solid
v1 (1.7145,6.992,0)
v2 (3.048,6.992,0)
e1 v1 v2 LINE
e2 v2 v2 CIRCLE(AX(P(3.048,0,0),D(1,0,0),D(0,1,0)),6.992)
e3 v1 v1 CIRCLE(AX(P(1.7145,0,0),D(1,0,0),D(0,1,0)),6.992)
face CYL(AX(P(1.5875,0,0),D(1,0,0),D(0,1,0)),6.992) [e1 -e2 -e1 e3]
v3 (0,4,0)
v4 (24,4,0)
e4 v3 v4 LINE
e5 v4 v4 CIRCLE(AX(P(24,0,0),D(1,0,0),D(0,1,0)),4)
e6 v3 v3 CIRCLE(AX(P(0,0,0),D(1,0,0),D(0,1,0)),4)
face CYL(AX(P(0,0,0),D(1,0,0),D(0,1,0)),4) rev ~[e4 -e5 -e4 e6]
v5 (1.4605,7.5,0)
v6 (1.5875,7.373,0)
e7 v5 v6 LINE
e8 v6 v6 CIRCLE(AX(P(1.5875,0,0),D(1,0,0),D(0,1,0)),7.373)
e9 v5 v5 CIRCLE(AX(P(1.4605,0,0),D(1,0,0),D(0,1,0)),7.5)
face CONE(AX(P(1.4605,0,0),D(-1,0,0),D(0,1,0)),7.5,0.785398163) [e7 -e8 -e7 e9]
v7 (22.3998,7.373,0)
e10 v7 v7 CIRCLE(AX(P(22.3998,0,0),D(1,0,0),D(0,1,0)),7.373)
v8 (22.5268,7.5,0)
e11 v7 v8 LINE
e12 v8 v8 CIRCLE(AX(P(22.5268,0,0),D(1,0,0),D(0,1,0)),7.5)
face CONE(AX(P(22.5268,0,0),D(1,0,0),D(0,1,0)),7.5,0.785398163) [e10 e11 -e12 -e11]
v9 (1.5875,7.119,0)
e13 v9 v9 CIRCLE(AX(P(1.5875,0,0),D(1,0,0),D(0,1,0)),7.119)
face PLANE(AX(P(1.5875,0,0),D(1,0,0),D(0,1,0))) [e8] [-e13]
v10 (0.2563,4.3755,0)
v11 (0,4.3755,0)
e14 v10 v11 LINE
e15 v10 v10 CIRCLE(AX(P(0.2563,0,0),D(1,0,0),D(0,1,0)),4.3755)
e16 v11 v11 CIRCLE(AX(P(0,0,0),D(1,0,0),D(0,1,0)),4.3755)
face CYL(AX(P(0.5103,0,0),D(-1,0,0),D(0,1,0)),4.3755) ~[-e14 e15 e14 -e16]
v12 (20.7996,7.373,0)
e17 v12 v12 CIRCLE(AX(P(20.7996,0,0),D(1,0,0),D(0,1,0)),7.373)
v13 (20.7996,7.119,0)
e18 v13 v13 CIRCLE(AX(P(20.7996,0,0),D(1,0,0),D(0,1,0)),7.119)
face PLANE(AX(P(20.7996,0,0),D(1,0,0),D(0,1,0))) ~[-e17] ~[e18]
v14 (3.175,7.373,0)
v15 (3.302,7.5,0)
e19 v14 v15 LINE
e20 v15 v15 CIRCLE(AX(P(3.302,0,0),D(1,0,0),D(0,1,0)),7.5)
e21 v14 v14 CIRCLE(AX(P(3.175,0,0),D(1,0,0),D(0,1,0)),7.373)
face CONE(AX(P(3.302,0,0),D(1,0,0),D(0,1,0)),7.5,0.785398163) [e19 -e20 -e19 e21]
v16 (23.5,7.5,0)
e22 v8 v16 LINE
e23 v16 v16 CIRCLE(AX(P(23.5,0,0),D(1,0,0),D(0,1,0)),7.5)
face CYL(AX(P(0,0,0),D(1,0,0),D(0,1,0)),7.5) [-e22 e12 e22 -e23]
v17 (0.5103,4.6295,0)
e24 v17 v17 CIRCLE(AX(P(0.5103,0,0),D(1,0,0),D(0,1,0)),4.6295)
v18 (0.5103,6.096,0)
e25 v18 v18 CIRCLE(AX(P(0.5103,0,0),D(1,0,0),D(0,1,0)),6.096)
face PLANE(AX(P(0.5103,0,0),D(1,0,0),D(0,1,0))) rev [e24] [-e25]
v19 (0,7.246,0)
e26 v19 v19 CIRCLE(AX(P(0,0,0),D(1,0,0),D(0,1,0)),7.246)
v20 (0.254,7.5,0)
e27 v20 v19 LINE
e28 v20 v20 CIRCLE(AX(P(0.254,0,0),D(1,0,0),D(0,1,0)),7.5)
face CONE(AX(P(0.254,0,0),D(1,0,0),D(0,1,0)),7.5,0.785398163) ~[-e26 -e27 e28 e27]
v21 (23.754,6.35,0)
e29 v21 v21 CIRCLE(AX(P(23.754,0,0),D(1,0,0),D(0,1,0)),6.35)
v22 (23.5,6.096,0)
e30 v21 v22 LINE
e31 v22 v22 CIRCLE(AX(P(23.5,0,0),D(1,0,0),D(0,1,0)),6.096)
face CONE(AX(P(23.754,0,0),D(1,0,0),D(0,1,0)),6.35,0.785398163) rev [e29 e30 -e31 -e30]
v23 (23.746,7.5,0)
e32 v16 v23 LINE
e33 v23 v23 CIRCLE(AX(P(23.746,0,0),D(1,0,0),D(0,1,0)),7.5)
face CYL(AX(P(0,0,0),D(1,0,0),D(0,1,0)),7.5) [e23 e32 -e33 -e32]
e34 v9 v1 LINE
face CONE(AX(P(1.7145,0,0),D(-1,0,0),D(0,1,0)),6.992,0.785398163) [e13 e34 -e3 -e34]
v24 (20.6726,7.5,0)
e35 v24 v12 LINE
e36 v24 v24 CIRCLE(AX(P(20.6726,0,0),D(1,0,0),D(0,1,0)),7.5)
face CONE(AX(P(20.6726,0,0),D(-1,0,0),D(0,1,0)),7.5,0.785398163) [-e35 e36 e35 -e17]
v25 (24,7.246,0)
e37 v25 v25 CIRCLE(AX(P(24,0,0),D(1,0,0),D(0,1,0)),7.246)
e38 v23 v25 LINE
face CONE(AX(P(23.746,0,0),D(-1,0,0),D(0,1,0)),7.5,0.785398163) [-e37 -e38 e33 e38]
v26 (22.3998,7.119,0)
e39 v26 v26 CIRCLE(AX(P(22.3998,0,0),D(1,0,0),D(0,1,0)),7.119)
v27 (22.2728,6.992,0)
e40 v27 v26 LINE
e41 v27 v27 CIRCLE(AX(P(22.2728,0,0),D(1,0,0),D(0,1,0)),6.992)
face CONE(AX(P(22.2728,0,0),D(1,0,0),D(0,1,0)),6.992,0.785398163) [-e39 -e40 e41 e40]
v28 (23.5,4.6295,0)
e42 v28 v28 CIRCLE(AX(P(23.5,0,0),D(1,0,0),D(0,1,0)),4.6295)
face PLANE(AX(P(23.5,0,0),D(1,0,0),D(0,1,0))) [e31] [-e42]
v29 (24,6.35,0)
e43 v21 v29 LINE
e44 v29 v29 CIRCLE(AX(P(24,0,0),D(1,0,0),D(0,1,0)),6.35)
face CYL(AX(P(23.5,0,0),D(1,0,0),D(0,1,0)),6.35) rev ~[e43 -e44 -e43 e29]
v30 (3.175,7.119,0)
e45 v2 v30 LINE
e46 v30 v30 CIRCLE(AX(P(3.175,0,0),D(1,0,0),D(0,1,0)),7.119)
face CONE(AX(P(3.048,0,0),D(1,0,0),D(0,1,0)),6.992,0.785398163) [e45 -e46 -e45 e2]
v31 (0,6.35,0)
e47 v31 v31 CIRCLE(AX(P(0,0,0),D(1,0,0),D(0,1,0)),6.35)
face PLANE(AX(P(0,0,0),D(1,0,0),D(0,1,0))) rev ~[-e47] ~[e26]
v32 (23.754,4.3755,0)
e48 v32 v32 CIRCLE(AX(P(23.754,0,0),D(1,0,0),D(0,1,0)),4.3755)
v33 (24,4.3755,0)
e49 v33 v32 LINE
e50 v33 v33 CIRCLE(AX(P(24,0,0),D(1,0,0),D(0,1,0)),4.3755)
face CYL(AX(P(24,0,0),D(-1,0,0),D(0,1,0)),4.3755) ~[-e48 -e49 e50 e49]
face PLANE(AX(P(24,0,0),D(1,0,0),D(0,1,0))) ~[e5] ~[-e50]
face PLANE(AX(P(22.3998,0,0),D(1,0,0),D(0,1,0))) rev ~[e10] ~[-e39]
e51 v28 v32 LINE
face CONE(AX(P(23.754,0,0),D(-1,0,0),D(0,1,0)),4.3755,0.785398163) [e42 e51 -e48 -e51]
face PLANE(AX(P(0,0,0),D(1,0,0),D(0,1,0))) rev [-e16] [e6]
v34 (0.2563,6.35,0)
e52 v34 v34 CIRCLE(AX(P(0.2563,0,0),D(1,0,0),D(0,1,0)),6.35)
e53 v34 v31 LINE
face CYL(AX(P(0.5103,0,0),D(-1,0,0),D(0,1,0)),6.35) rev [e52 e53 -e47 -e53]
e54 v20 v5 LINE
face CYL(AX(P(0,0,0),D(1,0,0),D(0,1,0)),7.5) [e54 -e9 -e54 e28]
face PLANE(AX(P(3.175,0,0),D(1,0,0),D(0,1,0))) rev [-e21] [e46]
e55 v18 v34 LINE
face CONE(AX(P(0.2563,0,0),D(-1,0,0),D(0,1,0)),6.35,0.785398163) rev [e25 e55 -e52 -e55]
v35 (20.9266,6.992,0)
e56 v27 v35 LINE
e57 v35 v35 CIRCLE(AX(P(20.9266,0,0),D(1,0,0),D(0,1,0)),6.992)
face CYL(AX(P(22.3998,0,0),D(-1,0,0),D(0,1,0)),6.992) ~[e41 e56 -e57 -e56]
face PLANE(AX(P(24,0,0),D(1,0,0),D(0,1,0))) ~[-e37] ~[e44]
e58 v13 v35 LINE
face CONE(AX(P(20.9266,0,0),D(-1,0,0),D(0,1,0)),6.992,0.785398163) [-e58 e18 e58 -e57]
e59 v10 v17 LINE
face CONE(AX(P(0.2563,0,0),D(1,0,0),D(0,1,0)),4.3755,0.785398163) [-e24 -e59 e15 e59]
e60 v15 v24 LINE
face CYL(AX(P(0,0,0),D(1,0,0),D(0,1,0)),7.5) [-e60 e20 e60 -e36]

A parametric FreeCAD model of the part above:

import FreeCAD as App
import Part
import Sketcher
from FreeCAD import Vector
Q = App.Units.Quantity


def edges_at(feature, points):
    """Names of the edges that pass closest to the given points."""
    edges = feature.Shape.Edges
    near = lambda p: min(range(len(edges)), key=lambda i: edges[i].distToShape(Part.Vertex(*p))[0])
    return sorted({f"Edge{near(p) + 1}" for p in points})


def add_polygon(sketch, points):
    """Adds a closed chain of lines whose ends are joined by coincident constraints."""
    first, n = sketch.GeometryCount, len(points)
    for a, b in zip(points, points[1:] + points[:1]):
        sketch.addGeometry(Part.LineSegment(App.Vector(*a, 0), App.Vector(*b, 0)), False)
    for i in range(n):
        sketch.addConstraint(Sketcher.Constraint("Coincident", first + i, 2, first + (i + 1) % n, 1))

doc = App.newDocument("Part")
params = doc.addObject("Spreadsheet::Sheet", "Params")
for row, (alias, value) in enumerate([
    ("sketch1_height", "0.02 in"),
    ("sketch1_width", "0.063 in"),
    ("sketch1_width2", "0.0625 in"),
    ("revolution_angle", "360 deg"),
    ("chamfer_size", "0.01 in"),
    ("chamfer2_size", "0.005 in"),
], start=1):
    params.set(f"A{row}", alias)
    params.set(f"B{row}", "=" + value)
    params.setAlias(f"B{row}", alias)

body = doc.addObject("PartDesign::Body", "Body")

sketch1 = body.newObject("Sketcher::SketchObject", "Sketch")
sketch1.AttachmentSupport = (doc.getObject("XY_Plane"), [""])
sketch1.MapMode = "FlatFace"
add_polygon(sketch1, [(1.59, 7.5), (0, 7.5), (0, 6.35), (0.51, 6.35), (0.51, 4.38), (0, 4.38), (0, 4), (24, 4), (24, 4.38), (23.5, 4.38), (23.5, 6.35), (24, 6.35), (24, 7.5), (22.4, 7.5), (22.4, 6.99), (20.8, 6.99), (20.8, 7.5), (3.17, 7.5), (3.17, 6.99), (1.59, 6.99)])
sketch1.addConstraint([
    Sketcher.Constraint("Horizontal", 0),
    Sketcher.Constraint("Vertical", 1),
    Sketcher.Constraint("Horizontal", 2),
    Sketcher.Constraint("Vertical", 3),
    Sketcher.Constraint("Horizontal", 4),
    Sketcher.Constraint("Vertical", 5),
    Sketcher.Constraint("Horizontal", 6),
    Sketcher.Constraint("Vertical", 7),
    Sketcher.Constraint("Horizontal", 8),
    Sketcher.Constraint("Vertical", 9),
    Sketcher.Constraint("Horizontal", 10),
    Sketcher.Constraint("Vertical", 11),
    Sketcher.Constraint("Horizontal", 12),
    Sketcher.Constraint("Vertical", 13),
    Sketcher.Constraint("Horizontal", 14),
    Sketcher.Constraint("Vertical", 15),
    Sketcher.Constraint("Horizontal", 16),
    Sketcher.Constraint("Vertical", 17),
    Sketcher.Constraint("Horizontal", 18),
    Sketcher.Constraint("Vertical", 19),
    Sketcher.Constraint("PointOnObject", 0, 2, -2),
    Sketcher.Constraint("PointOnObject", 4, 2, -2),
    Sketcher.Constraint("Horizontal", 4, 2, 7, 2),
    Sketcher.Constraint("Horizontal", 2, 2, 9, 2),
    Sketcher.Constraint("Horizontal", 0, 2, 11, 2),
    Sketcher.Constraint("Horizontal", 12, 2, 15, 2),
    Sketcher.Constraint("Horizontal", 14, 2, 17, 2),
    Sketcher.Constraint("Vertical", 7, 2, 10, 2),
    Sketcher.Constraint("Equal", 12, 14),
    Sketcher.Constraint("Equal", 0, 18),
    Sketcher.Constraint("DistanceY", 13, 2, 13, 1, Q("0.02 in")),
    Sketcher.Constraint("DistanceX", 12, 2, 12, 1, Q("0.063 in")),
    Sketcher.Constraint("DistanceX", 6, 1, 6, 2, 24.0),
    Sketcher.Constraint("DistanceX", -1, 1, 8, 2, Q("0.9252 in")),
    Sketcher.Constraint("DistanceX", 0, 2, 0, 1, Q("0.0625 in")),
    Sketcher.Constraint("DistanceY", -1, 1, 0, 2, 7.5),
    Sketcher.Constraint("DistanceY", -1, 1, 5, 2, 4.0),
    Sketcher.Constraint("DistanceY", -1, 1, 1, 2, Q("0.25 in")),
    Sketcher.Constraint("DistanceX", 2, 1, 2, 2, Q("0.0201 in")),
    Sketcher.Constraint("DistanceY", 3, 2, 0, 2, Q("0.123 in")),
])
sketch1.setExpression("Constraints[50]", "Params.sketch1_height")
sketch1.setExpression("Constraints[51]", "Params.sketch1_width")
sketch1.setExpression("Constraints[54]", "Params.sketch1_width2")
revolution = body.newObject("PartDesign::Revolution", "Revolution")
revolution.Profile = sketch1
revolution.ReferenceAxis = (sketch1, ["H_Axis"])
revolution.setExpression("Angle", "Params.revolution_angle")
doc.recompute()

chamfer = body.newObject("PartDesign::Chamfer", "Chamfer")
chamfer.Base = (revolution, edges_at(revolution, [
    (24, -7.5, 0),
    (0, -7.5, 0),
    (23.5, -4.375, 0),
    (23.5, -6.35, 0),
    (0.51, -6.35, 0),
    (0.51, -4.375, 0),
]))
chamfer.setExpression("Size", "Params.chamfer_size")
doc.recompute()

chamfer2 = body.newObject("PartDesign::Chamfer", "Chamfer001")
chamfer2.Base = (chamfer, edges_at(chamfer, [
    (3.175, -7.5, 0),
    (3.175, -6.992, 0),
    (22.4, -7.5, 0),
    (22.4, -6.992, 0),
    (1.587, -6.992, 0),
    (20.8, -6.992, 0),
    (20.8, -7.5, 0),
    (1.587, -7.5, 0),
]))
chamfer2.setExpression("Size", "Params.chamfer2_size")

doc.recompute()
